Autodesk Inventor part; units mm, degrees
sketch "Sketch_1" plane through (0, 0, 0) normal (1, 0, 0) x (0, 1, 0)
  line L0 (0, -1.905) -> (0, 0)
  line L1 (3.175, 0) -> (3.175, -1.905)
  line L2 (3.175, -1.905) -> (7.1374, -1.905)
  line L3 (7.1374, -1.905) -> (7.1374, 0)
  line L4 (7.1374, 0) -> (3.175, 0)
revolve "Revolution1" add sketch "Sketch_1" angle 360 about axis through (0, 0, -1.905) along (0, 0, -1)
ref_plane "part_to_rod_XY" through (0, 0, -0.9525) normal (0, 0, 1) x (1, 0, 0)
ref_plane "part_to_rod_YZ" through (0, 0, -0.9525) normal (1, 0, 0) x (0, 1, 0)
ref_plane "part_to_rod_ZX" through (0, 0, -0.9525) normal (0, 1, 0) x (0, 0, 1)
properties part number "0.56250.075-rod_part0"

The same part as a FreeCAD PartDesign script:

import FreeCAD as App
import Part
import Sketcher
Q = App.Units.Quantity

doc = App.newDocument("Part")
body = doc.addObject("PartDesign::Body", "Body")

# Sketch on YZ plane
sketch1 = doc.addObject("Sketcher::SketchObject", "Sketch")
body.addObject(sketch1)
sketch1.AttachmentSupport = (doc.YZ_Plane, [""])
sketch1.MapMode = "FlatFace"
sketch1.addGeometry([
    Part.LineSegment(App.Vector(7.1, 0, 0), App.Vector(3.2, 0, 0)),
    Part.LineSegment(App.Vector(3.2, 0, 0), App.Vector(3.2, -1.9, 0)),
    Part.LineSegment(App.Vector(3.2, -1.9, 0), App.Vector(7.1, -1.9, 0)),
    Part.LineSegment(App.Vector(7.1, -1.9, 0), App.Vector(7.1, 0, 0)),
], False)
sketch1.addConstraint([
    Sketcher.Constraint("Coincident", 0, 2, 1, 1),
    Sketcher.Constraint("Coincident", 1, 2, 2, 1),
    Sketcher.Constraint("Coincident", 2, 2, 3, 1),
    Sketcher.Constraint("Coincident", 3, 2, 0, 1),
    Sketcher.Constraint("Horizontal", 0),
    Sketcher.Constraint("Vertical", 1),
    Sketcher.Constraint("Horizontal", 2),
    Sketcher.Constraint("Vertical", 3),
    Sketcher.Constraint("PointOnObject", 0, 2, -1),
    Sketcher.Constraint("DistanceX", 0, 2, 0, 1, Q("0.156 in")),
    Sketcher.Constraint("DistanceY", 1, 2, 1, 1, Q("0.075 in")),
    Sketcher.Constraint("DistanceX", -1, 1, 0, 2, Q("0.125 in")),
])
revolution = doc.addObject("PartDesign::Revolution", "Revolution")
body.addObject(revolution)
revolution.Profile = sketch1
revolution.ReferenceAxis = (sketch1, ["V_Axis"])
revolution.Angle = 360

doc.recompute()
